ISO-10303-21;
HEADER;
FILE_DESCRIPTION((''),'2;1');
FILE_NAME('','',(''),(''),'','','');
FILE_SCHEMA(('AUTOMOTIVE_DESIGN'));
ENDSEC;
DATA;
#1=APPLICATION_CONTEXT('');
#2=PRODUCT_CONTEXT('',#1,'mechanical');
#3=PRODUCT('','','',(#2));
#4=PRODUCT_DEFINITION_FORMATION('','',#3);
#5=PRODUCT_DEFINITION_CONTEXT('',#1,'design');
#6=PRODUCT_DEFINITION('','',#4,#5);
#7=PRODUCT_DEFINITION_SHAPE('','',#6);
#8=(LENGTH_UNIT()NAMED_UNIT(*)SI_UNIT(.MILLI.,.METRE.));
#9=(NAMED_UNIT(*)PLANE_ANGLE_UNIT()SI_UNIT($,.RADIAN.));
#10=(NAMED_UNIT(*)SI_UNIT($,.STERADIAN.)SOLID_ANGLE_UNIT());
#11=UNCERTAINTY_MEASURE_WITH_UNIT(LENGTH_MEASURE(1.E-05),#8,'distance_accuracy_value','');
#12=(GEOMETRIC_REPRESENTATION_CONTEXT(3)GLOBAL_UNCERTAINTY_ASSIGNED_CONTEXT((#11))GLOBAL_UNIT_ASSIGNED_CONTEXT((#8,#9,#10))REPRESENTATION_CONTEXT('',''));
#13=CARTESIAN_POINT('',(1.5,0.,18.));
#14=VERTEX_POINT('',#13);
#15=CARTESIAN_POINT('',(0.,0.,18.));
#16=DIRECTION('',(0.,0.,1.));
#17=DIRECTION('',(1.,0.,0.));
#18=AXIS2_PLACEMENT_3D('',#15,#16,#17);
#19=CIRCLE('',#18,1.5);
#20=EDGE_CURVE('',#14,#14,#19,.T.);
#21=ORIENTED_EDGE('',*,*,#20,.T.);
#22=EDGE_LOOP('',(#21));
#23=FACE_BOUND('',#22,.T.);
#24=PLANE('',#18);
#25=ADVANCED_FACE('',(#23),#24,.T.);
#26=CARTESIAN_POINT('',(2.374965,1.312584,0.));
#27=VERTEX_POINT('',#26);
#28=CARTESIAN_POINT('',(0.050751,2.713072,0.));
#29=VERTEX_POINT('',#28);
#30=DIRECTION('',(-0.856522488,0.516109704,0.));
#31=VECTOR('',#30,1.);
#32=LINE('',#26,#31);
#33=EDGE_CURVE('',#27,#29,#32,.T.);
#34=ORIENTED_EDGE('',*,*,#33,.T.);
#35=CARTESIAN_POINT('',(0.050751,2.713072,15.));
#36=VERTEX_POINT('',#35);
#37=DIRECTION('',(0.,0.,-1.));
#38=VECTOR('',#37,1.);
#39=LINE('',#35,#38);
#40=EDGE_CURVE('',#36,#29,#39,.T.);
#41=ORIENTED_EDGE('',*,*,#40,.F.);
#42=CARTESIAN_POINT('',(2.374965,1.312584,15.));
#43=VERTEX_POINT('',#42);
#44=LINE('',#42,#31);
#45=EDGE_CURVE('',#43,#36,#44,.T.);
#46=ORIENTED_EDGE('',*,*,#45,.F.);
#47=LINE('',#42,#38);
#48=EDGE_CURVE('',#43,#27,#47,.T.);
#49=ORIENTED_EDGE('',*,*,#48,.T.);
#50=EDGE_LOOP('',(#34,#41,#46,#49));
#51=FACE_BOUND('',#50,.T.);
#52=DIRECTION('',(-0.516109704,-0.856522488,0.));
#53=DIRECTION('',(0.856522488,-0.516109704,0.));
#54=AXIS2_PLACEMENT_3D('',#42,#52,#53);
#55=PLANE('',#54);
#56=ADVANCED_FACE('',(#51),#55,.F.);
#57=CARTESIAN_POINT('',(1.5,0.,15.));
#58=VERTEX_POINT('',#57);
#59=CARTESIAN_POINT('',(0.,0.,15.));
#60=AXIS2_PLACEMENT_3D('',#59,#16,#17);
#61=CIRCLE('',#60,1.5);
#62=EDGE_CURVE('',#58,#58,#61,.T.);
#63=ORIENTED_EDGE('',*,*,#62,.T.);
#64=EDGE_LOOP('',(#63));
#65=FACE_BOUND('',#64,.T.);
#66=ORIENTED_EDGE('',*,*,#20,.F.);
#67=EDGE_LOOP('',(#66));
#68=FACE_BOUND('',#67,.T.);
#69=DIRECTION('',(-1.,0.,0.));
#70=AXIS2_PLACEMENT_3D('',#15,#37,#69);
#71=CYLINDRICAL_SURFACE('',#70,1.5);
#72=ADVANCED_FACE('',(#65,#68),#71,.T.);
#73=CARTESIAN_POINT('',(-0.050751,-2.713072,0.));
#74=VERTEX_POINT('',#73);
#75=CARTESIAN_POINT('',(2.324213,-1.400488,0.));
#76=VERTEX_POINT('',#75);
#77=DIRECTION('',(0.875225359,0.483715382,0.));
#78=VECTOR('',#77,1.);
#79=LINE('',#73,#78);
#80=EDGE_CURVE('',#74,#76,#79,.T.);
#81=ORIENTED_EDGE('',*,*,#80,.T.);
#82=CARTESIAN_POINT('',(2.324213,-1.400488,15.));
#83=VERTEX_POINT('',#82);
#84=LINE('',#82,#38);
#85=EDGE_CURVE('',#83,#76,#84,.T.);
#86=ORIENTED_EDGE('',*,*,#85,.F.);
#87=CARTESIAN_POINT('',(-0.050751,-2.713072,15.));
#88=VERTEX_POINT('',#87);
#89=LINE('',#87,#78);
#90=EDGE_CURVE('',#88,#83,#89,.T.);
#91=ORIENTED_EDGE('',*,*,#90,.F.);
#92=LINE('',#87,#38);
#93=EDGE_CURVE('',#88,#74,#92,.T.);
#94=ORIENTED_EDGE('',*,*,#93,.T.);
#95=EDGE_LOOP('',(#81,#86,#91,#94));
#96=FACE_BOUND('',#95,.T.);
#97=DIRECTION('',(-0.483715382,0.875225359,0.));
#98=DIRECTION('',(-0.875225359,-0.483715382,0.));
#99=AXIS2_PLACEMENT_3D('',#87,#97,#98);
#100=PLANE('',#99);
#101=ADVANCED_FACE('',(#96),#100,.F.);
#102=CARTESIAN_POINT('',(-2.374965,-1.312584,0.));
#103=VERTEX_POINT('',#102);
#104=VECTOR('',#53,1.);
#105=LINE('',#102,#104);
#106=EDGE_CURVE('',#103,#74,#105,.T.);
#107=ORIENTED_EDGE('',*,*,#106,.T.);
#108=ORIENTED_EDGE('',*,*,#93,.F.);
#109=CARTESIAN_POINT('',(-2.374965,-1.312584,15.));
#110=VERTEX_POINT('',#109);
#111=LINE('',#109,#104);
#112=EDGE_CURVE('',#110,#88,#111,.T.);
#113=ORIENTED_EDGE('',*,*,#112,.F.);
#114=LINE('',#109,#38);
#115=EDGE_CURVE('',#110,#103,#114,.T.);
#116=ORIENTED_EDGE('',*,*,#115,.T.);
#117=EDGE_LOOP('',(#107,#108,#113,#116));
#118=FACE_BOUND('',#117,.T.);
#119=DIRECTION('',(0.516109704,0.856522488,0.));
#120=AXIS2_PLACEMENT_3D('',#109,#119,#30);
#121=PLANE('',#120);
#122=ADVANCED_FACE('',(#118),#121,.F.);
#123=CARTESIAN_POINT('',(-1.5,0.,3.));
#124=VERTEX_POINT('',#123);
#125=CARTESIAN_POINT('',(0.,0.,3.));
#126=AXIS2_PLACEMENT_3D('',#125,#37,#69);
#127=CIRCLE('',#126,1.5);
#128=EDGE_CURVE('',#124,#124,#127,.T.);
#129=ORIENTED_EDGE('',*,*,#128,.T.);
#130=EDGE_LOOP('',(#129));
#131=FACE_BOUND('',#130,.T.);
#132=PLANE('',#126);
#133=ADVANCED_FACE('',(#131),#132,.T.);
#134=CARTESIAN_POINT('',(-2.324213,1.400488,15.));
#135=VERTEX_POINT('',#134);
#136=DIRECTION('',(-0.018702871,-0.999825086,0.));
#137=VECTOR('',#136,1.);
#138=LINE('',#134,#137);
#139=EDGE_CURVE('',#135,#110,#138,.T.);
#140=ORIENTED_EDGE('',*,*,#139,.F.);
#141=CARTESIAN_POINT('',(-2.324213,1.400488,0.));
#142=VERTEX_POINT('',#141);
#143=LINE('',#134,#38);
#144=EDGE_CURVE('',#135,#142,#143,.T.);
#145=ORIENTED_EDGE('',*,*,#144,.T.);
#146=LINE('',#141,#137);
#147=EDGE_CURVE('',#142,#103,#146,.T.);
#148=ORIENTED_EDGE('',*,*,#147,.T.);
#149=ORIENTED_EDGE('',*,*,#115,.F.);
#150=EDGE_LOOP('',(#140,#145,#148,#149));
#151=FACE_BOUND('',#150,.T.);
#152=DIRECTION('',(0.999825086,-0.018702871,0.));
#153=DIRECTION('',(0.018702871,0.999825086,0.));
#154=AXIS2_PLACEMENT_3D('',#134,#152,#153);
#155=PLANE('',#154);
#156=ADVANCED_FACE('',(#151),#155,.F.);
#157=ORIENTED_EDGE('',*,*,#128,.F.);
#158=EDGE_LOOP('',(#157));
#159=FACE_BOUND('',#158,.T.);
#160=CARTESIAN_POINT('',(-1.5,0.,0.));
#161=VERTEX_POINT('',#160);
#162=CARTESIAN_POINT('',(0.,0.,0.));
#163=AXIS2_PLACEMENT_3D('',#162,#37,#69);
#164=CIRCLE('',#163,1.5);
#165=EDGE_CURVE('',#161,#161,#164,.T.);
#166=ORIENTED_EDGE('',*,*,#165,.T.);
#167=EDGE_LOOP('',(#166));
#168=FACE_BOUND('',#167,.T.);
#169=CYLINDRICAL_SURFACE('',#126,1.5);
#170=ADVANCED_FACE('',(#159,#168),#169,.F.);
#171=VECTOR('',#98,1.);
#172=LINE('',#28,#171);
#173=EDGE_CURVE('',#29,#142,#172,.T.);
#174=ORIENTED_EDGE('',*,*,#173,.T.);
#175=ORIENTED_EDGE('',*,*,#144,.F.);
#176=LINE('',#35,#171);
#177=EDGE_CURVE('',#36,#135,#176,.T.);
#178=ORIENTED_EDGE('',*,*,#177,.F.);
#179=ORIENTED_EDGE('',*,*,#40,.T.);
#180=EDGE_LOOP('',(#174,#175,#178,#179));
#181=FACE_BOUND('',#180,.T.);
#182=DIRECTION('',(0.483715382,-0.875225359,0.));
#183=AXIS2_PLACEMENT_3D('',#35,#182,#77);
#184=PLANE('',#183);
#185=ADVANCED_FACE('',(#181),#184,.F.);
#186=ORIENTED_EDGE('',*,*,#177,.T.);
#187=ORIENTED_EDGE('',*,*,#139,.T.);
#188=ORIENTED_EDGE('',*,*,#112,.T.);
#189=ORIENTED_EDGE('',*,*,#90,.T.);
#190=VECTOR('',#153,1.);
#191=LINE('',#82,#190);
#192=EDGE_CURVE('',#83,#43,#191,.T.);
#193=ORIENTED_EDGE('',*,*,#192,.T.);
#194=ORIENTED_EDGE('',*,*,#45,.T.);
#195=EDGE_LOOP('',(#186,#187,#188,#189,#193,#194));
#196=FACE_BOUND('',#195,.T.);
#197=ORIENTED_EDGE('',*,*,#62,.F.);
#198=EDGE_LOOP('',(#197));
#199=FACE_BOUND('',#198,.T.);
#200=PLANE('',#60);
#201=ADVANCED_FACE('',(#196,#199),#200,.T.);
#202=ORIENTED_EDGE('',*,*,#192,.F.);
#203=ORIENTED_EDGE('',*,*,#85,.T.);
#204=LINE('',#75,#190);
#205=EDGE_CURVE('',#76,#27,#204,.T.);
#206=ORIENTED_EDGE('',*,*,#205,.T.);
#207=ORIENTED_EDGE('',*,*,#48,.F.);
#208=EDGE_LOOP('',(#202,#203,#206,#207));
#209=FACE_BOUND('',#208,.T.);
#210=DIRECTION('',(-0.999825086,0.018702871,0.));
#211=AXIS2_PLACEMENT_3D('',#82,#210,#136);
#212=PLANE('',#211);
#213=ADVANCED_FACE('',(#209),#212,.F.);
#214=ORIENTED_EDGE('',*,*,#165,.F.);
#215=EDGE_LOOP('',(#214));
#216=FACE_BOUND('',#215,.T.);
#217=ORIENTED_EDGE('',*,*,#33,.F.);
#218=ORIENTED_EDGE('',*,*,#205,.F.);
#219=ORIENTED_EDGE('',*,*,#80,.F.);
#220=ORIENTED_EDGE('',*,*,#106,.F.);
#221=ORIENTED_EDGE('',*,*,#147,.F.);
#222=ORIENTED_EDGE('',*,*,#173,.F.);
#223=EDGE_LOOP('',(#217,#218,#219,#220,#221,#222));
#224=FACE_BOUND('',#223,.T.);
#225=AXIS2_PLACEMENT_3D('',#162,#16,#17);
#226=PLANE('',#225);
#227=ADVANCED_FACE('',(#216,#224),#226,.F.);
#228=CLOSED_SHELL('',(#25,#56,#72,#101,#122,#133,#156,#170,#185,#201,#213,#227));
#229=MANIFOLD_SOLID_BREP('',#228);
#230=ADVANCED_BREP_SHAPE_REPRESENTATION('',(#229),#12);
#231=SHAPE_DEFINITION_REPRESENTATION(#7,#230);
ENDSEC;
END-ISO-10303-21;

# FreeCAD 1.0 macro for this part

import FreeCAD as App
import Part
import Sketcher
from FreeCAD import Vector


def add_polygon(sketch, points):
    """Adds a closed chain of lines whose ends are joined by coincident constraints."""
    first, n = sketch.GeometryCount, len(points)
    for a, b in zip(points, points[1:] + points[:1]):
        sketch.addGeometry(Part.LineSegment(App.Vector(*a, 0), App.Vector(*b, 0)), False)
    for i in range(n):
        sketch.addConstraint(Sketcher.Constraint("Coincident", first + i, 2, first + (i + 1) % n, 1))

doc = App.newDocument("Part")
body = doc.addObject("PartDesign::Body", "Body")

# Sketch on XY plane
sketch1 = doc.addObject("Sketcher::SketchObject", "Sketch")
body.addObject(sketch1)
sketch1.AttachmentSupport = (doc.XY_Plane, [""])
sketch1.MapMode = "FlatFace"
add_polygon(sketch1, [(-2.324213, 1.400488), (-2.374965, -1.312584), (-0.050751, -2.713072), (2.324213, -1.400488), (2.374965, 1.312584), (0.050751, 2.713072)])  # lines 0-5
sketch1.addConstraint([
    Sketcher.Constraint("Symmetric", 0, 2, 3, 2, -1, 1),
    Sketcher.Constraint("Symmetric", 1, 2, 4, 2, -1, 1),
    Sketcher.Constraint("Symmetric", 2, 2, 5, 2, -1, 1),
    Sketcher.Constraint("Equal", 0, 1),
    Sketcher.Constraint("Equal", 1, 2),
    Sketcher.Constraint("DistanceX", 1, 2, -1, 1, 0.050751),
    Sketcher.Constraint("DistanceY", 1, 2, -1, 1, 2.713072),
    Sketcher.Constraint("DistanceX", 2, 2, 3, 2, 0.050751),
    Sketcher.Constraint("DistanceY", 2, 2, 3, 2, 2.713072),
])
pad1 = doc.addObject("PartDesign::Pad", "Pad")
body.addObject(pad1)
pad1.Profile = sketch1
pad1.Length = 15

# Sketch on XY plane
sketch2 = doc.addObject("Sketcher::SketchObject", "Sketch001")
body.addObject(sketch2)
sketch2.AttachmentSupport = (doc.XY_Plane, [""])
sketch2.MapMode = "FlatFace"
sketch2.AttachmentOffset = App.Placement(Vector(0, 0, 15), App.Rotation())
sketch2.addGeometry(Part.Circle(Vector(0, 0, 0), Vector(0, 0, 1), 1.5), False)
sketch2.addConstraint([
    Sketcher.Constraint("Coincident", 0, 3, -1, 1),
    Sketcher.Constraint("Diameter", 0, 3.0),
])
pad2 = doc.addObject("PartDesign::Pad", "Pad001")
body.addObject(pad2)
pad2.Profile = sketch2
pad2.Length = 3

# Sketch on XY plane
sketch3 = doc.addObject("Sketcher::SketchObject", "Sketch002")
body.addObject(sketch3)
sketch3.AttachmentSupport = (doc.XY_Plane, [""])
sketch3.MapMode = "FlatFace"
sketch3.addGeometry(Part.Circle(Vector(0, 0, 0), Vector(0, 0, 1), 1.5), False)
sketch3.addConstraint([
    Sketcher.Constraint("Coincident", 0, 3, -1, 1),
    Sketcher.Constraint("Diameter", 0, 3.0),
])
pocket1 = doc.addObject("PartDesign::Pocket", "Pocket")
body.addObject(pocket1)
pocket1.Profile = sketch3
pocket1.Length = 3
pocket1.Reversed = True

doc.recompute()
